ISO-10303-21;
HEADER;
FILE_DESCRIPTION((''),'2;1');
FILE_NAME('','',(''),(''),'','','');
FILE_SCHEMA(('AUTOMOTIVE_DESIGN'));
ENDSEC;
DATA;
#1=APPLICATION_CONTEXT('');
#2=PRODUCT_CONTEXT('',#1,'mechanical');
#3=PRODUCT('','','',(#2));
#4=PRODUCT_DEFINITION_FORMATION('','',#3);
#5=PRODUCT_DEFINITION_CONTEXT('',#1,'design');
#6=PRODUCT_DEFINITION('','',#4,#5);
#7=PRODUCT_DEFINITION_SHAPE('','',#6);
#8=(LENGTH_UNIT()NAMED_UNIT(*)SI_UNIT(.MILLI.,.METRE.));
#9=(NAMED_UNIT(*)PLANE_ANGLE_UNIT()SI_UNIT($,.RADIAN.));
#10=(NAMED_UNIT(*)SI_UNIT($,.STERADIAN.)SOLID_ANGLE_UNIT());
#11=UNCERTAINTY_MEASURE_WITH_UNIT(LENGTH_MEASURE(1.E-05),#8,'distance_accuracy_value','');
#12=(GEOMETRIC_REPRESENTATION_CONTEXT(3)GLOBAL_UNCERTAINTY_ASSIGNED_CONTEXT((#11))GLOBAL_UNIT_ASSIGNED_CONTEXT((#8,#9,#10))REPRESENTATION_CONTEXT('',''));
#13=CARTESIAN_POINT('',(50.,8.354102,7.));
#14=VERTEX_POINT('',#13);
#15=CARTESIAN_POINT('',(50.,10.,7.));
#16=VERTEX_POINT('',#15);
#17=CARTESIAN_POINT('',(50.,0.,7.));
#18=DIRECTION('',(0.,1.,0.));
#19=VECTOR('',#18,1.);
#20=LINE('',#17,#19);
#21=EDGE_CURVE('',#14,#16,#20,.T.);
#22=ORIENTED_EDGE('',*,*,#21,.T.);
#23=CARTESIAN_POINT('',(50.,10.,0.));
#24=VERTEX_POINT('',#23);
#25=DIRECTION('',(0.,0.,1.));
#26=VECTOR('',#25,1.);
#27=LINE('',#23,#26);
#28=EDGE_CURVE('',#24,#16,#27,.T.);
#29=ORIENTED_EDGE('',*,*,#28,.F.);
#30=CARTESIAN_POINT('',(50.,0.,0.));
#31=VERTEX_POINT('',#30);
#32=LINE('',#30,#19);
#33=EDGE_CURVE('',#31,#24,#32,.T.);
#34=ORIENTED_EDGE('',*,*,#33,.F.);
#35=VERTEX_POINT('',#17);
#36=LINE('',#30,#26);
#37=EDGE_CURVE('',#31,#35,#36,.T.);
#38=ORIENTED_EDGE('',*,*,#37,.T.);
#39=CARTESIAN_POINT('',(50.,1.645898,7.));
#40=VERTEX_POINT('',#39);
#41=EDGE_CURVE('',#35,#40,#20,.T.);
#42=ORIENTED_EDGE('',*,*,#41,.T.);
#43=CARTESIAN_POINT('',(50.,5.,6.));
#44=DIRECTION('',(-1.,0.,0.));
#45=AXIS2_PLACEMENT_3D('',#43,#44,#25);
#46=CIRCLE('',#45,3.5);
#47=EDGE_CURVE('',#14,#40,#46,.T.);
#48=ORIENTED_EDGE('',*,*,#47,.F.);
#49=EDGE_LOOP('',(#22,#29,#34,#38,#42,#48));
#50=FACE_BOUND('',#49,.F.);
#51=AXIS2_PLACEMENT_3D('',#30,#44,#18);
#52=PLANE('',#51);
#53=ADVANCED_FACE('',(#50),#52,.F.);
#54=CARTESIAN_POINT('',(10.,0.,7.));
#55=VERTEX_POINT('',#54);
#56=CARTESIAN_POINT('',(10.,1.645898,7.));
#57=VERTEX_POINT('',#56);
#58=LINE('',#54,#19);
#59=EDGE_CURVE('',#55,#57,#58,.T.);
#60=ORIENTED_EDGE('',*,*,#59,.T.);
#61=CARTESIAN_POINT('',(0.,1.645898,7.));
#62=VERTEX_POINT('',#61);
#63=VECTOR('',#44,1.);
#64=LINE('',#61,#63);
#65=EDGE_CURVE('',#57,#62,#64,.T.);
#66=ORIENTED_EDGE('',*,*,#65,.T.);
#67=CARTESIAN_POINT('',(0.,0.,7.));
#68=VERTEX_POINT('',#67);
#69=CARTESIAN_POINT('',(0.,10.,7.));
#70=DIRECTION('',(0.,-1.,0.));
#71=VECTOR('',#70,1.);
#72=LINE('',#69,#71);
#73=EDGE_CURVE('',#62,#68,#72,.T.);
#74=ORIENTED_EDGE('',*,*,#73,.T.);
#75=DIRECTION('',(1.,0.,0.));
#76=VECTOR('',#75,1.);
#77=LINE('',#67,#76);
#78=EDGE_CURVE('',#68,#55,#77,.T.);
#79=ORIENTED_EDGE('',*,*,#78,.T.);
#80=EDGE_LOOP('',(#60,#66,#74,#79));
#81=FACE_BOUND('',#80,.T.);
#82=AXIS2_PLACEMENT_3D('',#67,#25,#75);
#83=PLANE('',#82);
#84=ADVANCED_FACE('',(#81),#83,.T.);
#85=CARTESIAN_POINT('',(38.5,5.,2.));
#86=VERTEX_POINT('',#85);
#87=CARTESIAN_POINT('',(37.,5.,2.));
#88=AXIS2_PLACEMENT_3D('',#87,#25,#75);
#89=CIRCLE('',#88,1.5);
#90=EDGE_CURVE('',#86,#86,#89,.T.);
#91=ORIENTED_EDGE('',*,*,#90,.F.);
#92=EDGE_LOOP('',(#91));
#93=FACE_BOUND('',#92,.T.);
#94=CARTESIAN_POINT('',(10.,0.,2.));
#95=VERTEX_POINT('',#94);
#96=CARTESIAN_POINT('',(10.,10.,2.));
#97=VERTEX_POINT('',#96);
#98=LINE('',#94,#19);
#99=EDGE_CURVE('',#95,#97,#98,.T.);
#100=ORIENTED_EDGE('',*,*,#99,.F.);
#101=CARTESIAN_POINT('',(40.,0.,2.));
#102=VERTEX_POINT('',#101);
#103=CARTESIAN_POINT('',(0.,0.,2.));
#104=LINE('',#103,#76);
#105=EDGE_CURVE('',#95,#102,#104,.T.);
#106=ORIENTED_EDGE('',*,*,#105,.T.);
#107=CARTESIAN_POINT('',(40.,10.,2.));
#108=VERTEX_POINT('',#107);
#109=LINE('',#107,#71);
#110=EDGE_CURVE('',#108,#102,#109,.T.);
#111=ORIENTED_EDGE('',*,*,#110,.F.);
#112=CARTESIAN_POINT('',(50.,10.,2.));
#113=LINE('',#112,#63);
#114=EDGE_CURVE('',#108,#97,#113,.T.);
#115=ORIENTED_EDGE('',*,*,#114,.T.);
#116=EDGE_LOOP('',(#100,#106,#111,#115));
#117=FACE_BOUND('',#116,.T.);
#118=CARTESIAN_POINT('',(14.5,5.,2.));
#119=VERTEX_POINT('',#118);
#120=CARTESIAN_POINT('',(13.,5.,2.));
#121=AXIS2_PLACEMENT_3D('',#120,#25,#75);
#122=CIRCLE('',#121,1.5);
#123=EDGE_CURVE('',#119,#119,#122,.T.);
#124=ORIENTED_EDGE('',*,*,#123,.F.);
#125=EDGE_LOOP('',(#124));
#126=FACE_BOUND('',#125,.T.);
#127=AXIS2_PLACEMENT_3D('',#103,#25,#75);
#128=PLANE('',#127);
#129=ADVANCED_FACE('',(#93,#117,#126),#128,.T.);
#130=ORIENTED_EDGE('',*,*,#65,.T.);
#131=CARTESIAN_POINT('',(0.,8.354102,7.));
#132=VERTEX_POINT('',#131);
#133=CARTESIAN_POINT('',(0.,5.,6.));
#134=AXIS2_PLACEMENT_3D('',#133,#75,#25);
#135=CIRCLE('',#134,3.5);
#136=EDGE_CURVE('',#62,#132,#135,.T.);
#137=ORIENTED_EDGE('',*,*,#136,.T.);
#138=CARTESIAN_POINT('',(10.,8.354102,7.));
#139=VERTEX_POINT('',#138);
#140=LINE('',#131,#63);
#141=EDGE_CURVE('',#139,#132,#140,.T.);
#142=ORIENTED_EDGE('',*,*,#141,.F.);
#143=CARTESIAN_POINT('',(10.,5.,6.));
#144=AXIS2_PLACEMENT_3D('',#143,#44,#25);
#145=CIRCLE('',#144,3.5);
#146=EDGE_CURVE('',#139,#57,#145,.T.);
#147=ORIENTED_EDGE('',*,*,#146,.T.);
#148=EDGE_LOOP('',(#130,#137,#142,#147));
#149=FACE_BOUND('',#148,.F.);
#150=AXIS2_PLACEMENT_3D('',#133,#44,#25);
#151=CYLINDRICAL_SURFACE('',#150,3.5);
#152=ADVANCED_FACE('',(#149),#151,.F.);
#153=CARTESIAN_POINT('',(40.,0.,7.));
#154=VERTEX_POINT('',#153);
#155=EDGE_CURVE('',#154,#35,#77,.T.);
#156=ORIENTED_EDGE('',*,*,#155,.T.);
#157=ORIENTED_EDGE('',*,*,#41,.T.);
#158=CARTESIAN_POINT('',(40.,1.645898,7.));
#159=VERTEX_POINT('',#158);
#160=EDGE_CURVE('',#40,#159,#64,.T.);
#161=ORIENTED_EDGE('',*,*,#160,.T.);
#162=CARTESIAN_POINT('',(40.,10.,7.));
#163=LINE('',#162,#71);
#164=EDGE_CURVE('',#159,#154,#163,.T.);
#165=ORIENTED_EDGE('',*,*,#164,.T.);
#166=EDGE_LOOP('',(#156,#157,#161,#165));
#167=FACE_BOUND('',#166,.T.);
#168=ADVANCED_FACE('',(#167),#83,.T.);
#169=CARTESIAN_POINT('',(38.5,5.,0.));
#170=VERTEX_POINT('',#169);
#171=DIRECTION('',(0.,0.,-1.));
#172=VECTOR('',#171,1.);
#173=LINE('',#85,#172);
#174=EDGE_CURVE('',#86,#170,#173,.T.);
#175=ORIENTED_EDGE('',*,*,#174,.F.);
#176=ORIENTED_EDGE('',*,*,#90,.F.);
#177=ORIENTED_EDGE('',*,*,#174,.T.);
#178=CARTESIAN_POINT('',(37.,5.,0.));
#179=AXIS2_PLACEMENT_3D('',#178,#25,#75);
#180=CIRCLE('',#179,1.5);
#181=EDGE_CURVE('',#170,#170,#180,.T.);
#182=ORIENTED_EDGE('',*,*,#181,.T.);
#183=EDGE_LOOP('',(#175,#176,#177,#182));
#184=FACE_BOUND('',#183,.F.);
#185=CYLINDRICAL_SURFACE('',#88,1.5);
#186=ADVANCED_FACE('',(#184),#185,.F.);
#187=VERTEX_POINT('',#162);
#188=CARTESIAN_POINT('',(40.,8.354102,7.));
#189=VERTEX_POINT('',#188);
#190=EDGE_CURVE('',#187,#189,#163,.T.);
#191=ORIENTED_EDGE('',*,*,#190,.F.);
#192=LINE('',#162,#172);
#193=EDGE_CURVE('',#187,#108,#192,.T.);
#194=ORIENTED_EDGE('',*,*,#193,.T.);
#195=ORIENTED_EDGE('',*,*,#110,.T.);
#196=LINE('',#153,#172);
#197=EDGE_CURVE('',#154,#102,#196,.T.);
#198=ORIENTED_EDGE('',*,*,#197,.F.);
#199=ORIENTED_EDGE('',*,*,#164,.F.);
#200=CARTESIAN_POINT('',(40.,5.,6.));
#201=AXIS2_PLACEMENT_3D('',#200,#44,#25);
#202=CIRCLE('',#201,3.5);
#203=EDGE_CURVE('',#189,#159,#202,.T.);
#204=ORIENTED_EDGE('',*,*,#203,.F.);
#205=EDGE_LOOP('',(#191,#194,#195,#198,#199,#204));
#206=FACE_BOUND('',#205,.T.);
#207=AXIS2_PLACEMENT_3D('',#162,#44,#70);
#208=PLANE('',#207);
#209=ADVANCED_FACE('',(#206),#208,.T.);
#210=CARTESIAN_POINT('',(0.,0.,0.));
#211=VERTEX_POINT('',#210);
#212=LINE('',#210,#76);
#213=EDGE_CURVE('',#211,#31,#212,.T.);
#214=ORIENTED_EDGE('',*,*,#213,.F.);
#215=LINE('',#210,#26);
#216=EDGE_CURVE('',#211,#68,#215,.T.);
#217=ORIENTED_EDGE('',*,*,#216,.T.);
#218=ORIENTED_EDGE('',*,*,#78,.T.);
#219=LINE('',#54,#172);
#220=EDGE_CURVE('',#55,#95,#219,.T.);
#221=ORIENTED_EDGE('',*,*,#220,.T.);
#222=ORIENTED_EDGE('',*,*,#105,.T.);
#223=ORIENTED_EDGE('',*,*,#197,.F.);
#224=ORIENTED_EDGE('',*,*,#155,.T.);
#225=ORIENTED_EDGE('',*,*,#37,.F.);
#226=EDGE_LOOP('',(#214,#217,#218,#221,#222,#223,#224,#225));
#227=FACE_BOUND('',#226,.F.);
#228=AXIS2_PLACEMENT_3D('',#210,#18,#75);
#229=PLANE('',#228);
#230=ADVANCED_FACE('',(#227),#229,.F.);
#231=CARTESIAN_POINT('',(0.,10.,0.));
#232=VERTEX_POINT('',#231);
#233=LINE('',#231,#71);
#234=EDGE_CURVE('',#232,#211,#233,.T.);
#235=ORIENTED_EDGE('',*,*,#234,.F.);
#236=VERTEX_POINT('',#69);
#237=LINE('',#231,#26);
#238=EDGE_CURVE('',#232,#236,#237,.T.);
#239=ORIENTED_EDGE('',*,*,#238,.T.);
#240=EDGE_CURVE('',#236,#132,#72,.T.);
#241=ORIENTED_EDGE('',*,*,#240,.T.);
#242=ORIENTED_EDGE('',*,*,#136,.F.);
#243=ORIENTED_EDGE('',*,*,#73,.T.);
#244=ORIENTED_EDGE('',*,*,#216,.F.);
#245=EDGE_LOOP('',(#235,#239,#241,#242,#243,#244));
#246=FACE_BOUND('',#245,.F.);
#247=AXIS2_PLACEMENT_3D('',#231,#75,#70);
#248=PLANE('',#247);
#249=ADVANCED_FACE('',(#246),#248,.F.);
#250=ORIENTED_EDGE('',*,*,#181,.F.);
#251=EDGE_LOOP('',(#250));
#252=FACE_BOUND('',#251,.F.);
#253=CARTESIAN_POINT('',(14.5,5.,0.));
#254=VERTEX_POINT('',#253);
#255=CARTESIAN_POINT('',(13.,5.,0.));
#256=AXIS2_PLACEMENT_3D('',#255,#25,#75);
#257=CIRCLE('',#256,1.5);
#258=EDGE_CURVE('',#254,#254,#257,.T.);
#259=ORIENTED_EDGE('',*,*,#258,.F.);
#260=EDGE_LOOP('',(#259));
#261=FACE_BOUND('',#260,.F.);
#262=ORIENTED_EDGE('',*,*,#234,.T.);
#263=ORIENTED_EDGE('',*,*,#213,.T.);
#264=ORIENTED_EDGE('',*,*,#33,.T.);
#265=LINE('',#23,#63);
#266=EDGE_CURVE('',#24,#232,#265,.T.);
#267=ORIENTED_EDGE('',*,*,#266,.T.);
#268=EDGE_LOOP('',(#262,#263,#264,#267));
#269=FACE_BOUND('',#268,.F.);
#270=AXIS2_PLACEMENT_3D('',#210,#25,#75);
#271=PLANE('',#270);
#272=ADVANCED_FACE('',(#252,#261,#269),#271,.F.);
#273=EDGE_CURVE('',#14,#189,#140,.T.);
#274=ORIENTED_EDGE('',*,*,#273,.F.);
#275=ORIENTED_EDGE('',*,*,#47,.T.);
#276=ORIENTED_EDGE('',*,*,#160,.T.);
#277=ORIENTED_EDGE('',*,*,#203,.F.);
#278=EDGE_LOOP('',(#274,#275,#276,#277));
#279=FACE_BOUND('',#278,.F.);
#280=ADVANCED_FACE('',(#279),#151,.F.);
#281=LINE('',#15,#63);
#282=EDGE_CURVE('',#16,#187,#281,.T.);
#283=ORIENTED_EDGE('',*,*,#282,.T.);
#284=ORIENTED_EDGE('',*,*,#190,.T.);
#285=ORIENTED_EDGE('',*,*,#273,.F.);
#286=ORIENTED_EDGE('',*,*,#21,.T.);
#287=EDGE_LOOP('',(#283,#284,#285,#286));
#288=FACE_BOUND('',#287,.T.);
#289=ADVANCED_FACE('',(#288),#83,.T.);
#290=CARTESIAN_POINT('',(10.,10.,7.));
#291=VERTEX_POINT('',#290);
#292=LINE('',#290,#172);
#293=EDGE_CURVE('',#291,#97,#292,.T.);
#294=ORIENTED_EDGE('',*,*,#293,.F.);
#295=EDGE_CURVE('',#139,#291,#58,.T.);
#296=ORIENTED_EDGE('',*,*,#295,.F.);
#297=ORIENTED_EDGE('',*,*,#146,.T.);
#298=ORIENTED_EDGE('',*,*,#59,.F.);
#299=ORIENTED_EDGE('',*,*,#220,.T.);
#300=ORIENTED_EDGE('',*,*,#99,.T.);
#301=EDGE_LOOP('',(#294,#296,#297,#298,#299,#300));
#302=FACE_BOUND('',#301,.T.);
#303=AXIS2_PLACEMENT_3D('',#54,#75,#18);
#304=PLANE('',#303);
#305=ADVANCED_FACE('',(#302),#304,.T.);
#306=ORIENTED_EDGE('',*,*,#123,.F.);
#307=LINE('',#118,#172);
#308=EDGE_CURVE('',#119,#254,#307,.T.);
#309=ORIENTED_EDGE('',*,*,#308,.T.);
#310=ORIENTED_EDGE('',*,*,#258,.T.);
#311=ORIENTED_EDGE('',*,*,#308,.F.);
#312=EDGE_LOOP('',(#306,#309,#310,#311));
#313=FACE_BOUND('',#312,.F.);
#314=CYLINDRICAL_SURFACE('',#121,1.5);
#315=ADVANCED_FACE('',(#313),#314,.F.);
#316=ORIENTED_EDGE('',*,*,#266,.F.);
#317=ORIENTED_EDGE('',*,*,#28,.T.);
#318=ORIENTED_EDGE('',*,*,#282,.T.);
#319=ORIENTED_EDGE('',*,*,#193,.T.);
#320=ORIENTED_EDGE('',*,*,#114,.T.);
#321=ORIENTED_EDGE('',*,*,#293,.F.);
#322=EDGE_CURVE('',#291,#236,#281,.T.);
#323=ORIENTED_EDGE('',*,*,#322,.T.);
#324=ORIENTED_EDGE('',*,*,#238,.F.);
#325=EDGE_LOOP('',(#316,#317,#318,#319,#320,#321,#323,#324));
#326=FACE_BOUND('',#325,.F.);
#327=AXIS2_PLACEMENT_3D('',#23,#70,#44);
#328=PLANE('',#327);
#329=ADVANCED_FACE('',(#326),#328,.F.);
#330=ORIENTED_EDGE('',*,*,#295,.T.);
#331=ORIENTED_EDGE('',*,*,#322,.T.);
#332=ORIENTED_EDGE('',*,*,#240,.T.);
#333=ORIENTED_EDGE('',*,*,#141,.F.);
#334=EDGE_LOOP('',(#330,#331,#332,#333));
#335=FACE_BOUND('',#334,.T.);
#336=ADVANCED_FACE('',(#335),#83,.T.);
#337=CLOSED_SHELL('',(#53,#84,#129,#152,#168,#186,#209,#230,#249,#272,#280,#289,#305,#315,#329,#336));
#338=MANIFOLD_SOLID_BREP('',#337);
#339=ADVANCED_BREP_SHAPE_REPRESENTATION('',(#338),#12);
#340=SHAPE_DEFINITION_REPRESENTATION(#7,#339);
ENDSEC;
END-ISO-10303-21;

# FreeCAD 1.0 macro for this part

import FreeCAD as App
import Part
import Sketcher

V = App.Vector
Q = App.Units.Quantity

doc = App.newDocument("Part")
params = doc.addObject("Spreadsheet::Sheet", "Params")
for row, (alias, value) in enumerate([
    ("sketch1_width", "50 mm"),
    ("sketch1_height", "10 mm"),
    ("pad1_length", "7 mm"),
    ("sketch2_diameter", "7 mm"),
    ("sketch3_width", "30 mm"),
    ("sketch3_height", "10 mm"),
    ("pocket2_length", "5 mm"),
    ("sketch4_diameter", "3 mm"),
    ("pocket3_length", "10 mm"),
], start=1):
    params.set(f"A{row}", alias)
    params.set(f"B{row}", "=" + value)
    params.setAlias(f"B{row}", alias)

body = doc.addObject("PartDesign::Body", "Body")

sketch1 = doc.addObject("Sketcher::SketchObject", "Sketch")
body.addObject(sketch1)
sketch1.AttachmentSupport = (doc.XY_Plane, [""])
sketch1.MapMode = "FlatFace"
sketch1.addGeometry(Part.LineSegment(V(0, 10, 0), V(0, 0, 0)), False)
sketch1.addGeometry(Part.LineSegment(V(0, 0, 0), V(50, 0, 0)), False)
sketch1.addGeometry(Part.LineSegment(V(50, 0, 0), V(50, 10, 0)), False)
sketch1.addGeometry(Part.LineSegment(V(50, 10, 0), V(0, 10, 0)), False)
sketch1.addConstraint(Sketcher.Constraint("Coincident", 0, 2, 1, 1))
sketch1.addConstraint(Sketcher.Constraint("Coincident", 1, 2, 2, 1))
sketch1.addConstraint(Sketcher.Constraint("Coincident", 2, 2, 3, 1))
sketch1.addConstraint(Sketcher.Constraint("Coincident", 3, 2, 0, 1))
sketch1.addConstraint(Sketcher.Constraint("Vertical", 0))
sketch1.addConstraint(Sketcher.Constraint("Horizontal", 1))
sketch1.addConstraint(Sketcher.Constraint("Vertical", 2))
sketch1.addConstraint(Sketcher.Constraint("Horizontal", 3))
sketch1.addConstraint(Sketcher.Constraint("Coincident", 0, 2, -1, 1))
sketch1.addConstraint(Sketcher.Constraint("DistanceX", 1, 1, 1, 2, Q("50 mm")))
sketch1.addConstraint(Sketcher.Constraint("DistanceY", 0, 2, 0, 1, Q("10 mm")))
sketch1.setExpression("Constraints[9]", "Params.sketch1_width")
sketch1.setExpression("Constraints[10]", "Params.sketch1_height")
pad1 = doc.addObject("PartDesign::Pad", "Pad")
body.addObject(pad1)
pad1.Profile = sketch1
pad1.setExpression("Length", "Params.pad1_length")

sketch2 = doc.addObject("Sketcher::SketchObject", "Sketch001")
body.addObject(sketch2)
sketch2.AttachmentSupport = (doc.YZ_Plane, [""])
sketch2.MapMode = "FlatFace"
sketch2.addGeometry(Part.Circle(V(5, 6, 0), V(0, 0, 1), 3.5), False)
sketch2.addConstraint(Sketcher.Constraint("Diameter", 0, Q("7 mm")))
sketch2.addConstraint(Sketcher.Constraint("DistanceX", -1, 1, 0, 3, Q("5 mm")))
sketch2.addConstraint(Sketcher.Constraint("DistanceY", -1, 1, 0, 3, Q("6 mm")))
sketch2.setExpression("Constraints[0]", "Params.sketch2_diameter")
pocket1 = doc.addObject("PartDesign::Pocket", "Pocket")
body.addObject(pocket1)
pocket1.Profile = sketch2
pocket1.Type = "ThroughAll"
pocket1.Reversed = True

sketch3 = doc.addObject("Sketcher::SketchObject", "Sketch002")
body.addObject(sketch3)
sketch3.AttachmentSupport = (doc.XY_Plane, [""])
sketch3.MapMode = "FlatFace"
sketch3.AttachmentOffset = App.Placement(V(0, 0, 7), App.Rotation())
sketch3.addGeometry(Part.LineSegment(V(40, 0, 0), V(40, 10, 0)), False)
sketch3.addGeometry(Part.LineSegment(V(40, 10, 0), V(10, 10, 0)), False)
sketch3.addGeometry(Part.LineSegment(V(10, 10, 0), V(10, 0, 0)), False)
sketch3.addGeometry(Part.LineSegment(V(10, 0, 0), V(40, 0, 0)), False)
sketch3.addConstraint(Sketcher.Constraint("Coincident", 0, 2, 1, 1))
sketch3.addConstraint(Sketcher.Constraint("Coincident", 1, 2, 2, 1))
sketch3.addConstraint(Sketcher.Constraint("Coincident", 2, 2, 3, 1))
sketch3.addConstraint(Sketcher.Constraint("Coincident", 3, 2, 0, 1))
sketch3.addConstraint(Sketcher.Constraint("Vertical", 0))
sketch3.addConstraint(Sketcher.Constraint("Horizontal", 1))
sketch3.addConstraint(Sketcher.Constraint("Vertical", 2))
sketch3.addConstraint(Sketcher.Constraint("Horizontal", 3))
sketch3.addConstraint(Sketcher.Constraint("PointOnObject", 2, 2, -1))
sketch3.addConstraint(Sketcher.Constraint("DistanceX", 1, 2, 1, 1, Q("30 mm")))
sketch3.addConstraint(Sketcher.Constraint("DistanceY", 0, 1, 0, 2, Q("10 mm")))
sketch3.addConstraint(Sketcher.Constraint("DistanceX", -1, 1, 0, 2, Q("40 mm")))
sketch3.setExpression("Constraints[9]", "Params.sketch3_width")
sketch3.setExpression("Constraints[10]", "Params.sketch3_height")
pocket2 = doc.addObject("PartDesign::Pocket", "Pocket001")
body.addObject(pocket2)
pocket2.Profile = sketch3
pocket2.setExpression("Length", "Params.pocket2_length")

sketch4 = doc.addObject("Sketcher::SketchObject", "Sketch003")
body.addObject(sketch4)
sketch4.AttachmentSupport = (doc.XY_Plane, [""])
sketch4.MapMode = "FlatFace"
sketch4.AttachmentOffset = App.Placement(V(0, 0, 2), App.Rotation())
sketch4.addGeometry(Part.Circle(V(13, 5, 0), V(0, 0, 1), 1.5), False)
sketch4.addGeometry(Part.Circle(V(37, 5, 0), V(0, 0, 1), 1.5), False)
sketch4.addConstraint(Sketcher.Constraint("Equal", 0, 1))
sketch4.addConstraint(Sketcher.Constraint("Horizontal", 0, 3, 1, 3))
sketch4.addConstraint(Sketcher.Constraint("Diameter", 0, Q("3 mm")))
sketch4.addConstraint(Sketcher.Constraint("DistanceX", -1, 1, 0, 3, Q("13 mm")))
sketch4.addConstraint(Sketcher.Constraint("DistanceY", -1, 1, 0, 3, Q("5 mm")))
sketch4.addConstraint(Sketcher.Constraint("DistanceX", -1, 1, 1, 3, Q("37 mm")))
sketch4.setExpression("Constraints[2]", "Params.sketch4_diameter")
pocket3 = doc.addObject("PartDesign::Pocket", "Pocket002")
body.addObject(pocket3)
pocket3.Profile = sketch4
pocket3.setExpression("Length", "Params.pocket3_length")

doc.recompute()
